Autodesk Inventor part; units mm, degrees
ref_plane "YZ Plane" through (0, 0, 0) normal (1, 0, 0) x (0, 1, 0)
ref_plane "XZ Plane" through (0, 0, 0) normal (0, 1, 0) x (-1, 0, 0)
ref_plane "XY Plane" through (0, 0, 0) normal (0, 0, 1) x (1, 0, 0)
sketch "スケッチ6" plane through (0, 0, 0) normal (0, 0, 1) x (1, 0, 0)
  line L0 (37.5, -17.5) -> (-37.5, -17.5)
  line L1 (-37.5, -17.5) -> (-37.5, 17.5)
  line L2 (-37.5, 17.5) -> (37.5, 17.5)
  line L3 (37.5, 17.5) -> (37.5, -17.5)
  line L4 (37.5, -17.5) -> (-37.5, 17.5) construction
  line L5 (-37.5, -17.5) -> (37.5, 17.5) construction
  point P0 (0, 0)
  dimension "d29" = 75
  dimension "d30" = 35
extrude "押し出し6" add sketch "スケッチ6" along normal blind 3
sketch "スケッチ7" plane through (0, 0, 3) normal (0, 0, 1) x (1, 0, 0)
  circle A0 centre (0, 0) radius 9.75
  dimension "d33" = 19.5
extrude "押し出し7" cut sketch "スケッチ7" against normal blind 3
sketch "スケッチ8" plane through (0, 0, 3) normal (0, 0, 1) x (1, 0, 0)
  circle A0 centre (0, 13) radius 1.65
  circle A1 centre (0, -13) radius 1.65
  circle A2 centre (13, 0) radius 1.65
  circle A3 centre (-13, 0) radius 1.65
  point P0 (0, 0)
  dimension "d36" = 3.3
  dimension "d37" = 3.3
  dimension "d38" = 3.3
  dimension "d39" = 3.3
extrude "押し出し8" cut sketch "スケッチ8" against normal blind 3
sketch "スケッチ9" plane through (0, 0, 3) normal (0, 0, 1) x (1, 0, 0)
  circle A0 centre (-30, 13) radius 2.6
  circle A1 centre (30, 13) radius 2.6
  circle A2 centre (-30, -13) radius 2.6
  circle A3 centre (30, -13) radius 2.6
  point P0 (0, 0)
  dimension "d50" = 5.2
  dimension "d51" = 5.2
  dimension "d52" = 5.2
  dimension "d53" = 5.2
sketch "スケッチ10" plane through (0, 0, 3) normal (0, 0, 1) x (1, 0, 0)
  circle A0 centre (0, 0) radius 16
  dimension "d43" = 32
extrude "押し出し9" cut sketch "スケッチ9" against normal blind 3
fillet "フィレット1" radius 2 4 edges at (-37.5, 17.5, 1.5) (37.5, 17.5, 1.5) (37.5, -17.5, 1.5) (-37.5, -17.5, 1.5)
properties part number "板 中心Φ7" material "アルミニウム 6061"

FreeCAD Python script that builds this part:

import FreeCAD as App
import Part
import Sketcher
from FreeCAD import Vector
Q = App.Units.Quantity


def edges_at(feature, points):
    """Names of the edges that pass closest to the given points."""
    edges = feature.Shape.Edges
    near = lambda p: min(range(len(edges)), key=lambda i: edges[i].distToShape(Part.Vertex(*p))[0])
    return sorted({f"Edge{near(p) + 1}" for p in points})

doc = App.newDocument("Part")
body = doc.addObject("PartDesign::Body", "Body")

sketch1 = doc.addObject("Sketcher::SketchObject", "Sketch")
body.addObject(sketch1)
sketch1.AttachmentSupport = (doc.XY_Plane, [""])
sketch1.MapMode = "FlatFace"
sketch1.addGeometry([
    Part.LineSegment(Vector(-38, -18, 0), Vector(38, -18, 0)),
    Part.LineSegment(Vector(38, -18, 0), Vector(38, 18, 0)),
    Part.LineSegment(Vector(38, 18, 0), Vector(-38, 18, 0)),
    Part.LineSegment(Vector(-38, 18, 0), Vector(-38, -18, 0)),
], False)
sketch1.addConstraint([
    Sketcher.Constraint("Coincident", 0, 2, 1, 1),
    Sketcher.Constraint("Coincident", 1, 2, 2, 1),
    Sketcher.Constraint("Coincident", 2, 2, 3, 1),
    Sketcher.Constraint("Coincident", 3, 2, 0, 1),
    Sketcher.Constraint("Horizontal", 0),
    Sketcher.Constraint("Vertical", 1),
    Sketcher.Constraint("Horizontal", 2),
    Sketcher.Constraint("Vertical", 3),
    Sketcher.Constraint("Symmetric", 0, 2, 2, 2, -1, 1),
    Sketcher.Constraint("DistanceX", 0, 1, 0, 2, Q("75 mm")),
    Sketcher.Constraint("DistanceY", 1, 1, 1, 2, Q("35 mm")),
])
pad1 = doc.addObject("PartDesign::Pad", "Pad")
body.addObject(pad1)
pad1.Profile = sketch1
pad1.Length = 3

sketch2 = doc.addObject("Sketcher::SketchObject", "Sketch001")
body.addObject(sketch2)
sketch2.AttachmentSupport = (doc.XY_Plane, [""])
sketch2.MapMode = "FlatFace"
sketch2.AttachmentOffset = App.Placement(Vector(0, 0, 3), App.Rotation())
sketch2.addGeometry(Part.Circle(Vector(0, 0, 0), Vector(0, 0, 1), 10), False)
sketch2.addConstraint([
    Sketcher.Constraint("Coincident", 0, 3, -1, 1),
    Sketcher.Constraint("Diameter", 0, Q("19.5 mm")),
])
pocket1 = doc.addObject("PartDesign::Pocket", "Pocket")
body.addObject(pocket1)
pocket1.Profile = sketch2
pocket1.Length = 3

sketch3 = doc.addObject("Sketcher::SketchObject", "Sketch002")
body.addObject(sketch3)
sketch3.AttachmentSupport = (doc.XY_Plane, [""])
sketch3.MapMode = "FlatFace"
sketch3.AttachmentOffset = App.Placement(Vector(0, 0, 3), App.Rotation())
sketch3.addGeometry([
    Part.Circle(Vector(0, 13, 0), Vector(0, 0, 1), 1.6),
    Part.Circle(Vector(0, -13, 0), Vector(0, 0, 1), 1.6),
    Part.Circle(Vector(13, 0, 0), Vector(0, 0, 1), 1.6),
    Part.Circle(Vector(-13, 0, 0), Vector(0, 0, 1), 1.6),
], False)
sketch3.addConstraint([
    Sketcher.Constraint("Equal", 0, 1),
    Sketcher.Constraint("Equal", 1, 2),
    Sketcher.Constraint("Equal", 2, 3),
    Sketcher.Constraint("Symmetric", 0, 3, 1, 3, -1, 1),
    Sketcher.Constraint("Symmetric", 2, 3, 3, 3, -1, 1),
    Sketcher.Constraint("PointOnObject", 0, 3, -2),
    Sketcher.Constraint("PointOnObject", 2, 3, -1),
    Sketcher.Constraint("Diameter", 0, Q("3.3 mm")),
    Sketcher.Constraint("DistanceY", -1, 1, 0, 3, Q("13 mm")),
    Sketcher.Constraint("DistanceX", -1, 1, 2, 3, Q("13 mm")),
])
pocket2 = doc.addObject("PartDesign::Pocket", "Pocket001")
body.addObject(pocket2)
pocket2.Profile = sketch3
pocket2.Length = 3

sketch4 = doc.addObject("Sketcher::SketchObject", "Sketch003")
body.addObject(sketch4)
sketch4.AttachmentSupport = (doc.XY_Plane, [""])
sketch4.MapMode = "FlatFace"
sketch4.AttachmentOffset = App.Placement(Vector(0, 0, 3), App.Rotation())
sketch4.addGeometry([
    Part.Circle(Vector(-30, 13, 0), Vector(0, 0, 1), 2.6),
    Part.Circle(Vector(30, 13, 0), Vector(0, 0, 1), 2.6),
    Part.Circle(Vector(-30, -13, 0), Vector(0, 0, 1), 2.6),
    Part.Circle(Vector(30, -13, 0), Vector(0, 0, 1), 2.6),
], False)
sketch4.addConstraint([
    Sketcher.Constraint("Equal", 0, 1),
    Sketcher.Constraint("Equal", 1, 2),
    Sketcher.Constraint("Equal", 2, 3),
    Sketcher.Constraint("Symmetric", 1, 3, 2, 3, -1, 1),
    Sketcher.Constraint("Symmetric", 0, 3, 3, 3, -1, 1),
    Sketcher.Constraint("Symmetric", 0, 3, 1, 3, -2),
    Sketcher.Constraint("Diameter", 0, Q("5.2 mm")),
    Sketcher.Constraint("DistanceX", 0, 3, -1, 1, Q("30 mm")),
    Sketcher.Constraint("DistanceY", -1, 1, 0, 3, Q("13 mm")),
])
pocket3 = doc.addObject("PartDesign::Pocket", "Pocket002")
body.addObject(pocket3)
pocket3.Profile = sketch4
pocket3.Length = 3
doc.recompute()

fillet = doc.addObject("PartDesign::Fillet", "Fillet")
body.addObject(fillet)
fillet.Base = (pocket3, edges_at(pocket3, [
    (-37.5, 17.5, 1.5),
    (37.5, 17.5, 1.5),
    (37.5, -17.5, 1.5),
    (-37.5, -17.5, 1.5),
]))
fillet.Radius = 2

doc.recompute()
